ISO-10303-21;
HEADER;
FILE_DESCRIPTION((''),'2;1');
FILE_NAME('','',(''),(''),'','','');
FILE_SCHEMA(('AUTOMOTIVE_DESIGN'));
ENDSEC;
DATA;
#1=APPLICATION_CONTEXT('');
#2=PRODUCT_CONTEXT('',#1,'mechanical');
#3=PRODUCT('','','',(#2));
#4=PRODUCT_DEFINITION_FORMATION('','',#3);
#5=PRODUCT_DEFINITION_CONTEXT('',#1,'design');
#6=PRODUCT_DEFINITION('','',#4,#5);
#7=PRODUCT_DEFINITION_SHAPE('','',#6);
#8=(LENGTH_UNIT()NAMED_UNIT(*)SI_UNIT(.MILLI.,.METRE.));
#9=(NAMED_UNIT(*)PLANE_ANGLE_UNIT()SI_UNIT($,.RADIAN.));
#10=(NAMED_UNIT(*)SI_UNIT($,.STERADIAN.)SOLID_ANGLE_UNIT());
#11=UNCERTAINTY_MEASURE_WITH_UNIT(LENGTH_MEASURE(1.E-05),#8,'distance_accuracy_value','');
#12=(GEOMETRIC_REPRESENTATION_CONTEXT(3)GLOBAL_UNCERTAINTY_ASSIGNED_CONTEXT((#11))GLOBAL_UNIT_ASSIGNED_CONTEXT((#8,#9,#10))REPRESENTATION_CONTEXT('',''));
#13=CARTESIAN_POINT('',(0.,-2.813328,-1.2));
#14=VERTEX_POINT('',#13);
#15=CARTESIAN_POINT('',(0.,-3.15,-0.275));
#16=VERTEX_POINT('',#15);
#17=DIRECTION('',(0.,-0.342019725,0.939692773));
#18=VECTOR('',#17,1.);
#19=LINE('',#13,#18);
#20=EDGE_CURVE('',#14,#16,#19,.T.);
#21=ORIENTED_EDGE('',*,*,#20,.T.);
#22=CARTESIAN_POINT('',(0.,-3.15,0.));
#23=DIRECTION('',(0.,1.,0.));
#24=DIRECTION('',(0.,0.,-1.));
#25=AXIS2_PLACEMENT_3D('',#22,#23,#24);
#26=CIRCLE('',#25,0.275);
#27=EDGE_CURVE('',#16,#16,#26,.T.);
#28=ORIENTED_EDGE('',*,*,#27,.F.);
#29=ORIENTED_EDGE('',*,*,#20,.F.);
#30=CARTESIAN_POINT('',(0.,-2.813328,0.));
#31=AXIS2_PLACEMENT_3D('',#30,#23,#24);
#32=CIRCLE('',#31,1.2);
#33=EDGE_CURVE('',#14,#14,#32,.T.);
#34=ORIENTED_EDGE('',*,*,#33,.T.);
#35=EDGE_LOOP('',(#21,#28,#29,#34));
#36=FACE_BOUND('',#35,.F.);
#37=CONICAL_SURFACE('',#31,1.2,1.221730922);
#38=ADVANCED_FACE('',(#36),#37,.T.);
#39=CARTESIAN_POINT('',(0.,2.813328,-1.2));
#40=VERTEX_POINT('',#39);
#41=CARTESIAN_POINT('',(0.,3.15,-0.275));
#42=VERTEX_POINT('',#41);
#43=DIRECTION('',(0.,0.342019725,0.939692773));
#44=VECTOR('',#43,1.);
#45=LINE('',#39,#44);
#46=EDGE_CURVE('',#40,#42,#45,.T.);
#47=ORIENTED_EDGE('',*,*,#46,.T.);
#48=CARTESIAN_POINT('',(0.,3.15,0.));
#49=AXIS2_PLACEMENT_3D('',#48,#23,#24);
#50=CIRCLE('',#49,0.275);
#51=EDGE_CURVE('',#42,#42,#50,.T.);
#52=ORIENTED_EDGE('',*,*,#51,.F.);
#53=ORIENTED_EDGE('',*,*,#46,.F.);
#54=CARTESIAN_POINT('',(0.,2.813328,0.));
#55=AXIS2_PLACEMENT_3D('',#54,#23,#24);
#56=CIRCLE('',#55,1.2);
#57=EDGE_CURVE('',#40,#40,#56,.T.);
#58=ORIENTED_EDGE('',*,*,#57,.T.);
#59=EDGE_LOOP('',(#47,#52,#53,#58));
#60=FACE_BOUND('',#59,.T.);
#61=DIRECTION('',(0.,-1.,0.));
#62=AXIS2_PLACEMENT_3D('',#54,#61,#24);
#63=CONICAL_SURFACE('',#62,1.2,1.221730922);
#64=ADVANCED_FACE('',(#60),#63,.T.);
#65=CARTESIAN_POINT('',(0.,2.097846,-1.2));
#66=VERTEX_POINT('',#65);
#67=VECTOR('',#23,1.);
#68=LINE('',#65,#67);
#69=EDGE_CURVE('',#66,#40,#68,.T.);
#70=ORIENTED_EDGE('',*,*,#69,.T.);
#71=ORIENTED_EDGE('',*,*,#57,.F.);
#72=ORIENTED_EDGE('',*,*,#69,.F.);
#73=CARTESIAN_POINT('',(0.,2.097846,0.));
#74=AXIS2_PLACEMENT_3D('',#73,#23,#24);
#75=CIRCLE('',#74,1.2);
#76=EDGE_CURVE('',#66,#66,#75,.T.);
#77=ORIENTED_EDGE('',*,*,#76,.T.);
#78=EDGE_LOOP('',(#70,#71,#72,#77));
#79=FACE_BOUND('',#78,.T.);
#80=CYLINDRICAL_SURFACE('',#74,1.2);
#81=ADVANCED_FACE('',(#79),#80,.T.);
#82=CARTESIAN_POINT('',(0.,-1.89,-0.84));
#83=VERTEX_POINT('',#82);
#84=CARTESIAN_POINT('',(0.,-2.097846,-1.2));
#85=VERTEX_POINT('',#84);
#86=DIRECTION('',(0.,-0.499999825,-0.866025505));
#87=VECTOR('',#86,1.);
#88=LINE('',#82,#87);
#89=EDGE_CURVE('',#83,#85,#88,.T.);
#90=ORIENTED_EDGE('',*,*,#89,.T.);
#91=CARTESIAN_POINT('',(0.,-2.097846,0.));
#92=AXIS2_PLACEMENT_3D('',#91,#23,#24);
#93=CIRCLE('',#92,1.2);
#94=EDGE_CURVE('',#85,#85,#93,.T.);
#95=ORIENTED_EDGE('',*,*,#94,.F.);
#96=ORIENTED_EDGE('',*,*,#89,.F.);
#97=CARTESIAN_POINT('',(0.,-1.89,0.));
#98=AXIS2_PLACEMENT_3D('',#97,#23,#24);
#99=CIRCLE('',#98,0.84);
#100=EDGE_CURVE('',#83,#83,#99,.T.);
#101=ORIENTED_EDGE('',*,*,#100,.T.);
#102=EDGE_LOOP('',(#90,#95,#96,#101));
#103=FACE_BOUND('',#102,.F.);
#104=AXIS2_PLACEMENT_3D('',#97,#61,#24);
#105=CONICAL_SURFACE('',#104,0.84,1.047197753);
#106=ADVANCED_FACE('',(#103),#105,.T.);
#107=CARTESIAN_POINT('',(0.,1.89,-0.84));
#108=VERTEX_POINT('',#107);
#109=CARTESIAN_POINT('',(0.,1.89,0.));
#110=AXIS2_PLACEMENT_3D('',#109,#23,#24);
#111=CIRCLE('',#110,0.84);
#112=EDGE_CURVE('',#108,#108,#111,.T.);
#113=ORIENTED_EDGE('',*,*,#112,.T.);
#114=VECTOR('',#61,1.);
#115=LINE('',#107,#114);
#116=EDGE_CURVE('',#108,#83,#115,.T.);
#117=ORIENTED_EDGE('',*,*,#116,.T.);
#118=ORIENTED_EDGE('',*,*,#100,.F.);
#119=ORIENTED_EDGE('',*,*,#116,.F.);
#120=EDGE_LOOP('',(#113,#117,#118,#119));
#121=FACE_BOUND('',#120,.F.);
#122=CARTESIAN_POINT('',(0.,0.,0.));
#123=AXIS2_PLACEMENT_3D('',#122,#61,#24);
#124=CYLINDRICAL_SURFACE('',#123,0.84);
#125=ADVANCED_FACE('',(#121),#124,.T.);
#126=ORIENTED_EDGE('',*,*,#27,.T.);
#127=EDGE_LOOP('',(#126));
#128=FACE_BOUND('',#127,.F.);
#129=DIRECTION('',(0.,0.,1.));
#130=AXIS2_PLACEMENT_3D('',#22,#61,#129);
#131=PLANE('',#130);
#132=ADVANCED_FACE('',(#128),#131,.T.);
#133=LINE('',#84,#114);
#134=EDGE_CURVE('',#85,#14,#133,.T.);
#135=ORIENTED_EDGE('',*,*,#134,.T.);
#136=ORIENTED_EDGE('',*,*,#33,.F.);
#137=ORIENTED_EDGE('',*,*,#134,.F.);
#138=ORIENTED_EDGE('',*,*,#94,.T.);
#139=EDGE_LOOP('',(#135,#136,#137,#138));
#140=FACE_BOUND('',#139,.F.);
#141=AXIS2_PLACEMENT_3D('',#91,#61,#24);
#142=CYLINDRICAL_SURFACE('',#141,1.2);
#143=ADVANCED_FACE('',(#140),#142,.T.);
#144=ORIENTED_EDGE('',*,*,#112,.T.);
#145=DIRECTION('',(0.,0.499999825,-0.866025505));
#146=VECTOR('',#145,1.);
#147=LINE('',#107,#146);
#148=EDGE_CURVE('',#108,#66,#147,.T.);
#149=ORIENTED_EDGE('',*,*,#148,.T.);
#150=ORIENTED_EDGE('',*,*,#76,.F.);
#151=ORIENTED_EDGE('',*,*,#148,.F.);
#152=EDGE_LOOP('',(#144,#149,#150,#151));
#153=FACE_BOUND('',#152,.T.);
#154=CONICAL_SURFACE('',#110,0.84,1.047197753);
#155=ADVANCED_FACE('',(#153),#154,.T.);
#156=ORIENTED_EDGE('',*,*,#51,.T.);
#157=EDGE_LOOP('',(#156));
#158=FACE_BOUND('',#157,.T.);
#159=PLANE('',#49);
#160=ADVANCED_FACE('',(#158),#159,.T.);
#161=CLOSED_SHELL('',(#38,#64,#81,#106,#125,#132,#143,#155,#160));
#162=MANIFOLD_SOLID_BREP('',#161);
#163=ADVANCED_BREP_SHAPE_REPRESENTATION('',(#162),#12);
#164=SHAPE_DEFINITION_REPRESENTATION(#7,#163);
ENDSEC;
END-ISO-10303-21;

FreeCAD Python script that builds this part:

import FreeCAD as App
import Part
import Sketcher

V = App.Vector
Q = App.Units.Quantity


def add_polygon(sketch, points):
    """Adds a closed chain of lines whose ends are joined by coincident constraints."""
    first, n = sketch.GeometryCount, len(points)
    for a, b in zip(points, points[1:] + points[:1]):
        sketch.addGeometry(Part.LineSegment(App.Vector(*a, 0), App.Vector(*b, 0)), False)
    for i in range(n):
        sketch.addConstraint(Sketcher.Constraint("Coincident", first + i, 2, first + (i + 1) % n, 1))

doc = App.newDocument("Part")
body = doc.addObject("PartDesign::Body", "Body")

sketch1 = body.newObject("Sketcher::SketchObject", "Sketch")
sketch1.AttachmentSupport = (doc.getObject("YZ_Plane"), [""])
sketch1.MapMode = "FlatFace"
add_polygon(sketch1, [(0, -0.84), (1.89, -0.84), (2.1, -1.2), (2.81, -1.2), (3.15, -0.28), (3.15, 0), (0, 0)])
sketch1.addConstraint(Sketcher.Constraint("Horizontal", 0))
sketch1.addConstraint(Sketcher.Constraint("Horizontal", 2))
sketch1.addConstraint(Sketcher.Constraint("Vertical", 4))
sketch1.addConstraint(Sketcher.Constraint("Horizontal", 5))
sketch1.addConstraint(Sketcher.Constraint("Vertical", 6))
sketch1.addConstraint(Sketcher.Constraint("Coincident", 5, 2, -1, 1))
sketch1.addConstraint(Sketcher.Constraint("Angle", 1, Q("-60.000012 deg")))
sketch1.addConstraint(Sketcher.Constraint("DistanceX", 0, 1, 0, 2, Q("1.89 mm")))
sketch1.addConstraint(Sketcher.Constraint("DistanceX", 5, 2, 5, 1, Q("3.15 mm")))
sketch1.addConstraint(Sketcher.Constraint("DistanceY", 6, 2, 6, 1, Q("0.84 mm")))
sketch1.addConstraint(Sketcher.Constraint("DistanceY", 1, 2, -1, 1, Q("1.2 mm")))
sketch1.addConstraint(Sketcher.Constraint("DistanceY", 4, 1, 4, 2, Q("0.275 mm")))
sketch1.addConstraint(Sketcher.Constraint("DistanceX", 2, 1, 2, 2, Q("0.715482 mm")))
revolution = body.newObject("PartDesign::Revolution", "Revolution")
revolution.Profile = sketch1
revolution.ReferenceAxis = (sketch1, ["H_Axis"])
revolution.Angle = 360
doc.recompute()

mirrored = body.newObject("PartDesign::Mirrored", "Mirrored")
mirrored.Originals = [revolution]
mirrored.MirrorPlane = (doc.getObject("XZ_Plane"), [""])
body.Tip = mirrored

doc.recompute()
